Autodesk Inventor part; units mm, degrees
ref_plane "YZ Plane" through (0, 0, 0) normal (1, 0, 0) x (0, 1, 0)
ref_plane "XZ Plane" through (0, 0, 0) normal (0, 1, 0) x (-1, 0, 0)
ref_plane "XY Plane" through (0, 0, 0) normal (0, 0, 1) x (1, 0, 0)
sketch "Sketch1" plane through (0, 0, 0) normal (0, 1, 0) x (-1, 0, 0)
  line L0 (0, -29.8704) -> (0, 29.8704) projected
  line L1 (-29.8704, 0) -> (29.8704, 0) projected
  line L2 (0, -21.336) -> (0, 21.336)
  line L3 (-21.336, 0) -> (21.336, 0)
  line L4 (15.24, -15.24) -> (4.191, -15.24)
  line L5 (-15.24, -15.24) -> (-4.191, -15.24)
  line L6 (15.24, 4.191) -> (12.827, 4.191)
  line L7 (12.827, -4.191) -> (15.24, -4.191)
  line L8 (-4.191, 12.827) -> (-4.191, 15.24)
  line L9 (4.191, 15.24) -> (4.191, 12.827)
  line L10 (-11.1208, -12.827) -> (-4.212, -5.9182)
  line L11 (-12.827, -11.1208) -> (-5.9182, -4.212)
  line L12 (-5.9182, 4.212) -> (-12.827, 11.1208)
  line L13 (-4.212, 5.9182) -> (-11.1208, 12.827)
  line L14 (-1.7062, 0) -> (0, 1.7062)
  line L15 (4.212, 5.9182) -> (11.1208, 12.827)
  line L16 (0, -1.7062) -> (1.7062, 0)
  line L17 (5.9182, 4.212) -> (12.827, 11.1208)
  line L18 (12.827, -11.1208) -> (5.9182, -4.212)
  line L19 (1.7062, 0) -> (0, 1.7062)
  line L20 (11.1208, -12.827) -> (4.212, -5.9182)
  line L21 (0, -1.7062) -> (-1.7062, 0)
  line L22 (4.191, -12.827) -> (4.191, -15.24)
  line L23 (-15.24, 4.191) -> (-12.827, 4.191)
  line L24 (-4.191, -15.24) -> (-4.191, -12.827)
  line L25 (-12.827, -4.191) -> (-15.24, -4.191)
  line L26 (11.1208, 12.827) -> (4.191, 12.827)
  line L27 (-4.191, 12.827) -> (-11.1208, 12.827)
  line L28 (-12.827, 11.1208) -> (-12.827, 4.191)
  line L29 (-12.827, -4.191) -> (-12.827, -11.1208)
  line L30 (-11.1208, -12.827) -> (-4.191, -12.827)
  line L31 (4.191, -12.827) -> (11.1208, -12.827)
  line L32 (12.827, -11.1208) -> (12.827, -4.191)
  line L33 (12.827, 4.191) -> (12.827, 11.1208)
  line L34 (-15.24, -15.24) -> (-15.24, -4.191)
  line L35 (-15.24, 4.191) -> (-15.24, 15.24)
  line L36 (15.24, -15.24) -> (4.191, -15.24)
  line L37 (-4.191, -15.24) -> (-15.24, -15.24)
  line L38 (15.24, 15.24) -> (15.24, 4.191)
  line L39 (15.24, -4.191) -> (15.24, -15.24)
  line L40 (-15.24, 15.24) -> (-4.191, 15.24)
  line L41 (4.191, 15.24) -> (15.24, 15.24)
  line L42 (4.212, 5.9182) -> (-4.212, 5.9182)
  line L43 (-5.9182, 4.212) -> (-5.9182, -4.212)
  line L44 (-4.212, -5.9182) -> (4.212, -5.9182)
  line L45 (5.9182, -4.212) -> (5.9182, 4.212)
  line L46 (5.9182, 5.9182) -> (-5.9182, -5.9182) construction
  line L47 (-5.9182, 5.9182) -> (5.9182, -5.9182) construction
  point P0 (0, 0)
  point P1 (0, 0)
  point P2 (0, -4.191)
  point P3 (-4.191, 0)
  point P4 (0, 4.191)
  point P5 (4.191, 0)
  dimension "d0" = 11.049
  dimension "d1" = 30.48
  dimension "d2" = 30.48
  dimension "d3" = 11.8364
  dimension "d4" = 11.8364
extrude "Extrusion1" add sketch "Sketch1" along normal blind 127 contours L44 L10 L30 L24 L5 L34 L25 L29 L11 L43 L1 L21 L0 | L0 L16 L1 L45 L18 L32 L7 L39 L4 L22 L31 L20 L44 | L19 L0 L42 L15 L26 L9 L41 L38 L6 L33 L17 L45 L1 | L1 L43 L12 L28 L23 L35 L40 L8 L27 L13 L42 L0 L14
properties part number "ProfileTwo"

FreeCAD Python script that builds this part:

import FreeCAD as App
import Part
import Sketcher

V = App.Vector
Q = App.Units.Quantity


def add_polygon(sketch, points):
    """Adds a closed chain of lines whose ends are joined by coincident constraints."""
    first, n = sketch.GeometryCount, len(points)
    for a, b in zip(points, points[1:] + points[:1]):
        sketch.addGeometry(Part.LineSegment(App.Vector(*a, 0), App.Vector(*b, 0)), False)
    for i in range(n):
        sketch.addConstraint(Sketcher.Constraint("Coincident", first + i, 2, first + (i + 1) % n, 1))

doc = App.newDocument("Part")
body = doc.addObject("PartDesign::Body", "Body")

# Sketch on XZ plane
sketch1 = doc.addObject("Sketcher::SketchObject", "Sketch")
body.addObject(sketch1)
sketch1.AttachmentSupport = (doc.XZ_Plane, [""])
sketch1.MapMode = "FlatFace"
add_polygon(sketch1, [(4.212, -5.9182), (-4.212, -5.9182), (-11.1208, -12.827), (-4.191, -12.827), (-4.191, -15.24), (-15.24, -15.24), (-15.24, -4.191), (-12.827, -4.191), (-12.827, -11.1208), (-5.9182, -4.212), (-5.9182, 4.212), (-12.827, 11.1208), (-12.827, 4.191), (-15.24, 4.191), (-15.24, 15.24), (-4.191, 15.24), (-4.191, 12.827), (-11.1208, 12.827), (-4.212, 5.9182), (4.212, 5.9182), (11.1208, 12.827), (4.191, 12.827), (4.191, 15.24), (15.24, 15.24), (15.24, 4.191), (12.827, 4.191), (12.827, 11.1208), (5.9182, 4.212), (5.9182, -4.212), (12.827, -11.1208), (12.827, -4.191), (15.24, -4.191), (15.24, -15.24), (4.191, -15.24), (4.191, -12.827), (11.1208, -12.827)])  # lines 0-35
add_polygon(sketch1, [(0, -1.7062), (1.7062, 0), (0, 1.7062), (-1.7062, 0)])  # lines 36-39
sketch1.addConstraint(Sketcher.Constraint("Horizontal", 0))
sketch1.addConstraint(Sketcher.Constraint("Horizontal", 2))
sketch1.addConstraint(Sketcher.Constraint("Vertical", 3))
sketch1.addConstraint(Sketcher.Constraint("Horizontal", 4))
sketch1.addConstraint(Sketcher.Constraint("Vertical", 5))
sketch1.addConstraint(Sketcher.Constraint("Horizontal", 6))
sketch1.addConstraint(Sketcher.Constraint("Vertical", 7))
sketch1.addConstraint(Sketcher.Constraint("Vertical", 9))
sketch1.addConstraint(Sketcher.Constraint("Vertical", 11))
sketch1.addConstraint(Sketcher.Constraint("Horizontal", 12))
sketch1.addConstraint(Sketcher.Constraint("Vertical", 13))
sketch1.addConstraint(Sketcher.Constraint("Horizontal", 14))
sketch1.addConstraint(Sketcher.Constraint("Vertical", 15))
sketch1.addConstraint(Sketcher.Constraint("Horizontal", 16))
sketch1.addConstraint(Sketcher.Constraint("Horizontal", 18))
sketch1.addConstraint(Sketcher.Constraint("Horizontal", 20))
sketch1.addConstraint(Sketcher.Constraint("Vertical", 21))
sketch1.addConstraint(Sketcher.Constraint("Horizontal", 22))
sketch1.addConstraint(Sketcher.Constraint("Vertical", 23))
sketch1.addConstraint(Sketcher.Constraint("Horizontal", 24))
sketch1.addConstraint(Sketcher.Constraint("Vertical", 25))
sketch1.addConstraint(Sketcher.Constraint("Vertical", 27))
sketch1.addConstraint(Sketcher.Constraint("Vertical", 29))
sketch1.addConstraint(Sketcher.Constraint("Horizontal", 30))
sketch1.addConstraint(Sketcher.Constraint("Vertical", 31))
sketch1.addConstraint(Sketcher.Constraint("Horizontal", 32))
sketch1.addConstraint(Sketcher.Constraint("Vertical", 33))
sketch1.addConstraint(Sketcher.Constraint("Horizontal", 34))
sketch1.addConstraint(Sketcher.Constraint("Symmetric", 0, 2, 18, 2, -1, 1))
sketch1.addConstraint(Sketcher.Constraint("Symmetric", 1, 2, 19, 2, -1, 1))
sketch1.addConstraint(Sketcher.Constraint("Symmetric", 3, 2, 21, 2, -1, 1))
sketch1.addConstraint(Sketcher.Constraint("Symmetric", 5, 2, 23, 2, -1, 1))
sketch1.addConstraint(Sketcher.Constraint("Symmetric", 7, 2, 25, 2, -1, 1))
sketch1.addConstraint(Sketcher.Constraint("Symmetric", 8, 2, 26, 2, -1, 1))
sketch1.addConstraint(Sketcher.Constraint("Symmetric", 10, 2, 28, 2, -1, 1))
sketch1.addConstraint(Sketcher.Constraint("Symmetric", 12, 2, 30, 2, -1, 1))
sketch1.addConstraint(Sketcher.Constraint("Symmetric", 14, 2, 32, 2, -1, 1))
sketch1.addConstraint(Sketcher.Constraint("Symmetric", 16, 2, 34, 2, -1, 1))
sketch1.addConstraint(Sketcher.Constraint("Symmetric", 36, 2, 38, 2, -1, 1))
sketch1.addConstraint(Sketcher.Constraint("Symmetric", 37, 2, 39, 2, -1, 1))
sketch1.addConstraint(Sketcher.Constraint("Symmetric", 16, 2, 19, 2, -2))
sketch1.addConstraint(Sketcher.Constraint("Symmetric", 14, 2, 21, 2, -2))
sketch1.addConstraint(Sketcher.Constraint("Symmetric", 12, 2, 23, 2, -2))
sketch1.addConstraint(Sketcher.Constraint("Symmetric", 10, 2, 25, 2, -2))
sketch1.addConstraint(Sketcher.Constraint("PointOnObject", 36, 2, -1))
sketch1.addConstraint(Sketcher.Constraint("PointOnObject", 37, 2, -2))
sketch1.addConstraint(Sketcher.Constraint("Parallel", 1, 8))
sketch1.addConstraint(Sketcher.Constraint("Perpendicular", 8, 10))
sketch1.addConstraint(Sketcher.Constraint("Parallel", 10, 17))
sketch1.addConstraint(Sketcher.Constraint("Perpendicular", 26, 28))
sketch1.addConstraint(Sketcher.Constraint("Parallel", 28, 35))
sketch1.addConstraint(Sketcher.Constraint("Perpendicular", 35, 36))
sketch1.addConstraint(Sketcher.Constraint("Perpendicular", 36, 37))
sketch1.addConstraint(Sketcher.Constraint("Equal", 30, 3))
sketch1.addConstraint(Sketcher.Constraint("Equal", 32, 5))
sketch1.addConstraint(Sketcher.Constraint("Equal", 34, 7))
sketch1.addConstraint(Sketcher.Constraint("Equal", 18, 9))
sketch1.addConstraint(Sketcher.Constraint("Equal", 1, 8))
sketch1.addConstraint(Sketcher.Constraint("DistanceX", 4, 2, 4, 1, Q("0.435 in")))
sketch1.addConstraint(Sketcher.Constraint("DistanceX", 8, 2, 27, 2, Q("0.466 in")))
sketch1.addConstraint(Sketcher.Constraint("DistanceY", 3, 2, -1, 1, Q("0.6 in")))
sketch1.addConstraint(Sketcher.Constraint("DistanceX", 6, 1, 6, 2, Q("0.095 in")))
sketch1.addConstraint(Sketcher.Constraint("Distance", 36, Q("0.095 in")))
sketch1.addConstraint(Sketcher.Constraint("DistanceX", 0, 2, 36, 2, Q("0.233 in")))
pad1 = doc.addObject("PartDesign::Pad", "Pad")
body.addObject(pad1)
pad1.Profile = sketch1
pad1.Length = Q("5 in")
pad1.Reversed = True

doc.recompute()
